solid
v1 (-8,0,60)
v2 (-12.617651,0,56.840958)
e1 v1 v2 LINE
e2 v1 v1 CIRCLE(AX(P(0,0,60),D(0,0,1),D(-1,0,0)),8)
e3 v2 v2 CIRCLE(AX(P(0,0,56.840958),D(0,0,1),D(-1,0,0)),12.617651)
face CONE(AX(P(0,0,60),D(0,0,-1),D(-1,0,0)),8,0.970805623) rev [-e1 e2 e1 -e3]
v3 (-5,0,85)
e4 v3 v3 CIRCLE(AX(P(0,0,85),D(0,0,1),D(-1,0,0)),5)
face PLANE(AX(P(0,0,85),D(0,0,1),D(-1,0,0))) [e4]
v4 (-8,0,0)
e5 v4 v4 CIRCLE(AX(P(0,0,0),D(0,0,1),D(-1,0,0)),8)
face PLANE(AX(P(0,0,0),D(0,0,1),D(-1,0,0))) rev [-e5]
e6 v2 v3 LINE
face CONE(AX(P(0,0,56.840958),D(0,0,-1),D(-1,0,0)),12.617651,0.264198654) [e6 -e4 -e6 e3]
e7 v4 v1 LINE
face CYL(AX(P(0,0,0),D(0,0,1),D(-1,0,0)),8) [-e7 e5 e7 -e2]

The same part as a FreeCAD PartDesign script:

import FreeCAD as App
import Part
import Sketcher

V = App.Vector
Q = App.Units.Quantity

doc = App.newDocument("Part")
body = doc.addObject("PartDesign::Body", "Body")

# Sketch on XZ plane
sketch1 = body.newObject("Sketcher::SketchObject", "Sketch")
sketch1.AttachmentSupport = (doc.getObject("XZ_Plane"), [""])
sketch1.MapMode = "FlatFace"
sketch1.addGeometry([
    Part.LineSegment(V(-8, 0, 0), V(0, 0, 0)),  # 0
    Part.LineSegment(V(0, 0, 0), V(0, 85, 0)),  # 1
    Part.LineSegment(V(0, 85, 0), V(-5, 85, 0)),  # 2
    Part.LineSegment(V(-5, 85, 0), V(-13, 57, 0)),  # 3
    Part.LineSegment(V(-13, 57, 0), V(-8, 60, 0)),  # 4
    Part.LineSegment(V(-8, 60, 0), V(-8, 0, 0)),  # 5
], False)
sketch1.addConstraint([
    Sketcher.Constraint("Coincident", 0, 2, 1, 1),
    Sketcher.Constraint("Coincident", 1, 2, 2, 1),
    Sketcher.Constraint("Coincident", 2, 2, 3, 1),
    Sketcher.Constraint("Coincident", 3, 2, 4, 1),
    Sketcher.Constraint("Coincident", 4, 2, 5, 1),
    Sketcher.Constraint("Coincident", 5, 2, 0, 1),
    Sketcher.Constraint("Horizontal", 0),
    Sketcher.Constraint("Vertical", 1),
    Sketcher.Constraint("Horizontal", 2),
    Sketcher.Constraint("Vertical", 5),
    Sketcher.Constraint("Coincident", 0, 2, -1, 1),
    Sketcher.Constraint("DistanceX", 0, 1, 0, 2, Q("8 mm")),
    Sketcher.Constraint("DistanceX", 2, 2, 2, 1, Q("5 mm")),
    Sketcher.Constraint("DistanceY", 1, 1, 1, 2, Q("85 mm")),
    Sketcher.Constraint("DistanceY", 5, 2, 5, 1, Q("60 mm")),
    Sketcher.Constraint("Distance", 4, Q("5.594841 mm")),
    Sketcher.Constraint("DistanceX", 3, 2, -1, 1, Q("12.617651 mm")),
])
revolution = body.newObject("PartDesign::Revolution", "Revolution")
revolution.Profile = sketch1
revolution.ReferenceAxis = (sketch1, ["V_Axis"])
revolution.Angle = 360

doc.recompute()
